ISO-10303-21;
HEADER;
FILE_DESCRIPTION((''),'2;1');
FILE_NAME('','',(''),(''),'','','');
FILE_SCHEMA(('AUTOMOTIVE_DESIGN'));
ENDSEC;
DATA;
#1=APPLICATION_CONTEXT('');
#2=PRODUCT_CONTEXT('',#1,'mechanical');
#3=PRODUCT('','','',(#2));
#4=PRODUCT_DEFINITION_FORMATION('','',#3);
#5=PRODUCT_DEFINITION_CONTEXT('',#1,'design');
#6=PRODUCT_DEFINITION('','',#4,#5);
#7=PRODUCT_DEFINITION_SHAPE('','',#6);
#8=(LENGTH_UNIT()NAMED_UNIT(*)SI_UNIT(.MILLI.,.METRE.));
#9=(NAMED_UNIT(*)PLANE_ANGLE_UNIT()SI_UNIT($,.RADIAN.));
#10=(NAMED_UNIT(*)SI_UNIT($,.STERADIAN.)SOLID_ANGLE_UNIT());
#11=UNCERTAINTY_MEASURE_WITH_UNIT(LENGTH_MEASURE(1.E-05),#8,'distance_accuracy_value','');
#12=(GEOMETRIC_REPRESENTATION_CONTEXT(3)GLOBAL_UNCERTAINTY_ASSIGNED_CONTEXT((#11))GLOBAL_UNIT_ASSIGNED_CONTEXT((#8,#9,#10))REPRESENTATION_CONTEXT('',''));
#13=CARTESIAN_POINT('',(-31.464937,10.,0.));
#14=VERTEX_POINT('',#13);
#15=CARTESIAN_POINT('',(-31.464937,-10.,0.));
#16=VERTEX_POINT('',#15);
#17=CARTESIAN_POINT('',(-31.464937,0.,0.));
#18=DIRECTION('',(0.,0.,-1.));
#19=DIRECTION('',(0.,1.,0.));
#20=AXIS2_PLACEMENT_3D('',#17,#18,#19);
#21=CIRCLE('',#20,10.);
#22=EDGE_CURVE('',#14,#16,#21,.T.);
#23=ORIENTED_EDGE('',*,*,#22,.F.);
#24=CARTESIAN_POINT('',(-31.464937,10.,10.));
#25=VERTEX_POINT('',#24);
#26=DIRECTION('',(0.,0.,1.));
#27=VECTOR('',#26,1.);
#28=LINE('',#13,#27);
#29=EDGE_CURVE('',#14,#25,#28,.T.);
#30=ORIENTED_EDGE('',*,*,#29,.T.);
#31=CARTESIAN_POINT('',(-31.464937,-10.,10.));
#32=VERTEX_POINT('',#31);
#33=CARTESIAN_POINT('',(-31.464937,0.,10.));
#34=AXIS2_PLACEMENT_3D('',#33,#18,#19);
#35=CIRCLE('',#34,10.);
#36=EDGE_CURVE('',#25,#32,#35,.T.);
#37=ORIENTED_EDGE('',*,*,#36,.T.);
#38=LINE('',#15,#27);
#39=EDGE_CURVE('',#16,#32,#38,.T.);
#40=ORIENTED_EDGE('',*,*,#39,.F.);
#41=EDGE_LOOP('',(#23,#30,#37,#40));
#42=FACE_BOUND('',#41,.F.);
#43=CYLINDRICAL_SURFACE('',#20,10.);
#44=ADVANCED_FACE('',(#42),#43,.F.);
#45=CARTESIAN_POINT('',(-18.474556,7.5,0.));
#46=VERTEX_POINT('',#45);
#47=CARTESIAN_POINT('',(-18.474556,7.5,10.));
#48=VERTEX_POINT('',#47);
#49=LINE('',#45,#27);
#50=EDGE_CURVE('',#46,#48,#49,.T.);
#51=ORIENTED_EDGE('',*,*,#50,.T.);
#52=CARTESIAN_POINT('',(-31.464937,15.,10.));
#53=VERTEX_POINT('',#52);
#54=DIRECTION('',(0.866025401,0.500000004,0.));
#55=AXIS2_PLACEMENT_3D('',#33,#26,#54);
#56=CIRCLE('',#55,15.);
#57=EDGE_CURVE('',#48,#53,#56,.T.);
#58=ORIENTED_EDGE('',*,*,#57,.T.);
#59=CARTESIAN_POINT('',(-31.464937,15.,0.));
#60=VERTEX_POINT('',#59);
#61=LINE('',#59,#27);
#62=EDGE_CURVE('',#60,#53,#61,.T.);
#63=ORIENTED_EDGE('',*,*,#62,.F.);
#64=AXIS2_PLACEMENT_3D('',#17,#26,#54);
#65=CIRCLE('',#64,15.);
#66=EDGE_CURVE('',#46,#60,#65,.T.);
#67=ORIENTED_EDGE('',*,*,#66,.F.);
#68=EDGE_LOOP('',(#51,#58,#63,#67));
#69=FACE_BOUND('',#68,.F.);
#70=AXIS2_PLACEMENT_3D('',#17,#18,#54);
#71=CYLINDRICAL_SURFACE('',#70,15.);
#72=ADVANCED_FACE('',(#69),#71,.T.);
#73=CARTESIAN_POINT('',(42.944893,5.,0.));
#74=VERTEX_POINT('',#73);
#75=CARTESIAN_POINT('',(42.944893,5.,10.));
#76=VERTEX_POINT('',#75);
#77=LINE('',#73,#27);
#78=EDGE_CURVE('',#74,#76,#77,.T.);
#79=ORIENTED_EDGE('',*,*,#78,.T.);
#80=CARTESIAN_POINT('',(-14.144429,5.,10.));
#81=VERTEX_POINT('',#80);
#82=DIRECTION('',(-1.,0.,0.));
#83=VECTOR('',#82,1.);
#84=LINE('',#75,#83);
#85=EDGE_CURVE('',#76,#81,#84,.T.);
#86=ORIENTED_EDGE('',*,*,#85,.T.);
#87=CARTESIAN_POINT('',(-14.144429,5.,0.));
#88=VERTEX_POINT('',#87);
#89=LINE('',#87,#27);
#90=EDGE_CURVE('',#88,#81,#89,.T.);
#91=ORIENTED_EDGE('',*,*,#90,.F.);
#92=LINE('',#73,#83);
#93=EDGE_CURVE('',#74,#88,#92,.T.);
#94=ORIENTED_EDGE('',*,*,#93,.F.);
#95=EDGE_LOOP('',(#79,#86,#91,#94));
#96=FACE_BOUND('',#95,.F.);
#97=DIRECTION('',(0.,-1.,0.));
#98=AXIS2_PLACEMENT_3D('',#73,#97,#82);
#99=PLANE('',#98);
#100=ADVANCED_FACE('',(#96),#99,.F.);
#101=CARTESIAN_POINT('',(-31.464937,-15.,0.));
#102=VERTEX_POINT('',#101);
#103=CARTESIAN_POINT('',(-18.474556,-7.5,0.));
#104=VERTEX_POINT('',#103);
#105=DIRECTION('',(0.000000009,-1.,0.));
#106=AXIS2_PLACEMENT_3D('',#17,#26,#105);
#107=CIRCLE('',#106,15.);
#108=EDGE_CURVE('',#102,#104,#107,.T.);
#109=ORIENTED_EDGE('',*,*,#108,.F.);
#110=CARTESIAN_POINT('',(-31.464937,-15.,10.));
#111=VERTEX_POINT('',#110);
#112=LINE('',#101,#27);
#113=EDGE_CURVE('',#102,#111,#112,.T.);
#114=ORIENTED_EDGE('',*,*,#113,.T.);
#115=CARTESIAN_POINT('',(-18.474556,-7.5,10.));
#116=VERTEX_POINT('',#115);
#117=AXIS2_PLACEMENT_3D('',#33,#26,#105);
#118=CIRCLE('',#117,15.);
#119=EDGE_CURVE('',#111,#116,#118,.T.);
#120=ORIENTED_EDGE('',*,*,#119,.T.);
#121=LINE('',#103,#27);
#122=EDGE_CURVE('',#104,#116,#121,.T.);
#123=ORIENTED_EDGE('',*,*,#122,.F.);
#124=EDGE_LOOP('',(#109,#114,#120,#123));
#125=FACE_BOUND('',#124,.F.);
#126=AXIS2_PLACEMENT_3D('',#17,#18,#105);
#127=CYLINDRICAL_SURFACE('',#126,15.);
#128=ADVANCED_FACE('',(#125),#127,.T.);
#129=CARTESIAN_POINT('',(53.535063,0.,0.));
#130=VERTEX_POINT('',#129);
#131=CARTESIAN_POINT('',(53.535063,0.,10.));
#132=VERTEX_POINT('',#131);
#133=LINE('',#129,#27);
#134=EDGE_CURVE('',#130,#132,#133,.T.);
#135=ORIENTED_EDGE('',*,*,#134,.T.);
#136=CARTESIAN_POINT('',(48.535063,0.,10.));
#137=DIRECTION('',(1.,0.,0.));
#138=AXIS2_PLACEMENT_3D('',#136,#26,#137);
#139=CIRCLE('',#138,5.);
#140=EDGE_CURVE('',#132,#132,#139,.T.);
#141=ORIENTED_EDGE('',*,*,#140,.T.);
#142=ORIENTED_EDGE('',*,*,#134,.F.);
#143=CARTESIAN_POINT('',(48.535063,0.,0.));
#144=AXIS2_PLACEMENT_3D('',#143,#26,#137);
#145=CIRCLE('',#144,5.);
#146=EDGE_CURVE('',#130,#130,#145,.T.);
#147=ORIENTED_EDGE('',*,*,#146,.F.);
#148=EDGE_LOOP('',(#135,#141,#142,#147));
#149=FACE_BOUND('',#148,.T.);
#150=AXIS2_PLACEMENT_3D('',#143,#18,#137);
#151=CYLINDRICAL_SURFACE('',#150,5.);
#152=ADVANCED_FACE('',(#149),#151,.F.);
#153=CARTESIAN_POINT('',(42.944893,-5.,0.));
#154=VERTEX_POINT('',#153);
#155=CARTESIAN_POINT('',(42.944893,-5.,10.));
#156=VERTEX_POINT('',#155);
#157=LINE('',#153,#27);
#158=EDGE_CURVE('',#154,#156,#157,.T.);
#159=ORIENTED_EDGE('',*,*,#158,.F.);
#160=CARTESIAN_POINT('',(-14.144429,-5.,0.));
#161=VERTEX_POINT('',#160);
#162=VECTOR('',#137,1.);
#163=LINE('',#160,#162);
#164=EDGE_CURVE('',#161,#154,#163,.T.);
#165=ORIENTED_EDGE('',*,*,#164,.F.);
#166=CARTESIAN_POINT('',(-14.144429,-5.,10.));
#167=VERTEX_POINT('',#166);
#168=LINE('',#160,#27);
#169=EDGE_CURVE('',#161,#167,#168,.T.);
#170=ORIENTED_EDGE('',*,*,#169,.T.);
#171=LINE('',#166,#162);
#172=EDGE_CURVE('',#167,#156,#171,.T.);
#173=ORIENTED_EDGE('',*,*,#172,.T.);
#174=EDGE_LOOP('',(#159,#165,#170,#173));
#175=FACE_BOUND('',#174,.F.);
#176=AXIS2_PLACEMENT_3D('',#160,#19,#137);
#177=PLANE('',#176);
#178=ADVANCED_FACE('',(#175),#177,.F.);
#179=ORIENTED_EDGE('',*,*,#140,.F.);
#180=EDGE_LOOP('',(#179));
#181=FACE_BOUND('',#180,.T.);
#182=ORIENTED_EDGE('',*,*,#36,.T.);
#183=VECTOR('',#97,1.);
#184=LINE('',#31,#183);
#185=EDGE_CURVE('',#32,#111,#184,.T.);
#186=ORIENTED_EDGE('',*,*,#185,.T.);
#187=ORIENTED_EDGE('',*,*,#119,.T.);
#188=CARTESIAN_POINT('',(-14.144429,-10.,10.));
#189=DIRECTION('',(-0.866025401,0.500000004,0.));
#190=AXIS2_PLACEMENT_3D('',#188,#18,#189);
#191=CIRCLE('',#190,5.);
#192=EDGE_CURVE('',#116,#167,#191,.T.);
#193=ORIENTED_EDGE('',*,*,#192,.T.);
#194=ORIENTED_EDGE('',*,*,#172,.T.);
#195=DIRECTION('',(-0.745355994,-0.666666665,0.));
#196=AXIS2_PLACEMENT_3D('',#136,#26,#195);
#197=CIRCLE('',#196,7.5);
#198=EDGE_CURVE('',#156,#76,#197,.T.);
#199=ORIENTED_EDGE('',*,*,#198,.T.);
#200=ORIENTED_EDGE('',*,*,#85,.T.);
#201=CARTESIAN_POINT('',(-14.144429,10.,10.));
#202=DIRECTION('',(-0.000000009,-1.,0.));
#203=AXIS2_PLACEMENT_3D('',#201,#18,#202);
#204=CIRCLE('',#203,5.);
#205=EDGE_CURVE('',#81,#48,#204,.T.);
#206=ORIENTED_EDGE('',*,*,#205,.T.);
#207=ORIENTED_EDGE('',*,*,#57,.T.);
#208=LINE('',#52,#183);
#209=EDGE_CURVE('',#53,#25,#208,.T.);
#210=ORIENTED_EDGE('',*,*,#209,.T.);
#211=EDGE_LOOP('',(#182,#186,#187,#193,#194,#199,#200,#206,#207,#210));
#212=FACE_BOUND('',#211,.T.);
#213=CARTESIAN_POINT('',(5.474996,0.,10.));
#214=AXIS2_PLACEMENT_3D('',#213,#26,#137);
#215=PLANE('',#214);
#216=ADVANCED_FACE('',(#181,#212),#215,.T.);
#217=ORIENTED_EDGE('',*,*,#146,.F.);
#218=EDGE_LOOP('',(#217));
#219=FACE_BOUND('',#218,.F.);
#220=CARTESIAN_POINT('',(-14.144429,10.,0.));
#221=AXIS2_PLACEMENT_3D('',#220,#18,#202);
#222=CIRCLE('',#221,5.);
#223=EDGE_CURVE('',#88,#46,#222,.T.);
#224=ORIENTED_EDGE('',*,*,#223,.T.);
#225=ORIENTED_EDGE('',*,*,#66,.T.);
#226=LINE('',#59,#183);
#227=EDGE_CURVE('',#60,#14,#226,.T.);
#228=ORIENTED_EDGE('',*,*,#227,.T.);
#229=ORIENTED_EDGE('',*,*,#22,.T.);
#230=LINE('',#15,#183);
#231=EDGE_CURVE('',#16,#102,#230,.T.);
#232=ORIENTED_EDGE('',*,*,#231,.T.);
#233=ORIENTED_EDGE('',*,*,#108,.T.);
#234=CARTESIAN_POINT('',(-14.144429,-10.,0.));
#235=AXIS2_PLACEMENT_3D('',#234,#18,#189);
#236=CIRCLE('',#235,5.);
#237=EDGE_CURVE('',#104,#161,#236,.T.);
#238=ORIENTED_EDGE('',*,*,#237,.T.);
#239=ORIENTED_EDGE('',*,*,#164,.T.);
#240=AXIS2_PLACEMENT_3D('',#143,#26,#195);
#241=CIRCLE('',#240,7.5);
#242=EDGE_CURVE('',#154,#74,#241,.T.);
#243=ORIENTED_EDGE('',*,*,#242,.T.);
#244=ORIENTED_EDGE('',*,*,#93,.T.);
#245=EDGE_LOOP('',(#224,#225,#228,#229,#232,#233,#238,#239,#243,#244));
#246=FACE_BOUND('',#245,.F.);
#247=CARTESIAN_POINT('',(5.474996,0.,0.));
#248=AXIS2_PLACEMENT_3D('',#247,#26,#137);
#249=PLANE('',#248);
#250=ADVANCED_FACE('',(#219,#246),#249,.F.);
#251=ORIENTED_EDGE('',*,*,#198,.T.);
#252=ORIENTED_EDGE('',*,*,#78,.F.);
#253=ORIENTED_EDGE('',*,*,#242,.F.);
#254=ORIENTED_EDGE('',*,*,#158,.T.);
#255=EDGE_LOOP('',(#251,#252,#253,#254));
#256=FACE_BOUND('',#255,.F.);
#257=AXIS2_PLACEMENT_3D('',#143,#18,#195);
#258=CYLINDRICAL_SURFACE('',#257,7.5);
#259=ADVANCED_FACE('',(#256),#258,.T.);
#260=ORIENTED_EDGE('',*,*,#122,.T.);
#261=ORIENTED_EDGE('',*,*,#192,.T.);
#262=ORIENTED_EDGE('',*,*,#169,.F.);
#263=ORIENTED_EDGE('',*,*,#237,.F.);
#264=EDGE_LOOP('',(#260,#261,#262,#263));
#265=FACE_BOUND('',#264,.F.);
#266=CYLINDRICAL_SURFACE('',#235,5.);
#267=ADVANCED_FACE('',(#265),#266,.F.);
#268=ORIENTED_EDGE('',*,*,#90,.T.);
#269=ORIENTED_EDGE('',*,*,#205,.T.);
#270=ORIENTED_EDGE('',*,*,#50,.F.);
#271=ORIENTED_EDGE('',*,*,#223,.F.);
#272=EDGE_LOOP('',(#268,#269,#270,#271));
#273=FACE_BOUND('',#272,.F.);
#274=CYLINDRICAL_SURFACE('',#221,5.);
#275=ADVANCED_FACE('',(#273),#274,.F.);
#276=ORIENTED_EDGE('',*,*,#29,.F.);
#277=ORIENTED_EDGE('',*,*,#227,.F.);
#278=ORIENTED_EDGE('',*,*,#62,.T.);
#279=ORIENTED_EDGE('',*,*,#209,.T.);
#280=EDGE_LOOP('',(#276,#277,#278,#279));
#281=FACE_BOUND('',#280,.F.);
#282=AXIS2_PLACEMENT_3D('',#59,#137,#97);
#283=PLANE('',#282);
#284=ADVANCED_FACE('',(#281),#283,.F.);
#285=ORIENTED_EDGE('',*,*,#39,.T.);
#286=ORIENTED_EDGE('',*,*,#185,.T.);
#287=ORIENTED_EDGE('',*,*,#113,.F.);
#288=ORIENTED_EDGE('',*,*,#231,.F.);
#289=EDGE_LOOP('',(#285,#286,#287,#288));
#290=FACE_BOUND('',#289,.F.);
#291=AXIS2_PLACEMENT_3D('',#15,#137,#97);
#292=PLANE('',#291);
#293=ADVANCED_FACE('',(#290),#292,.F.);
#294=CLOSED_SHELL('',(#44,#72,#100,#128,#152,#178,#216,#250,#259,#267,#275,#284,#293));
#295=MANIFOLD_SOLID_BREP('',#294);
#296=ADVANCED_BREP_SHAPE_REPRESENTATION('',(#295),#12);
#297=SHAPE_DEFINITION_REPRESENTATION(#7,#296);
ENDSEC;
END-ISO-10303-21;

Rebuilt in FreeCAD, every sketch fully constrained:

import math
import FreeCAD as App
import Part
import Sketcher

V = App.Vector
Q = App.Units.Quantity

doc = App.newDocument("Part")
params = doc.addObject("Spreadsheet::Sheet", "Params")
for row, (alias, value) in enumerate([
    ("sketch1_diameter", "10 mm"),
    ("sketch1_radius", "10 mm"),
    ("sketch1_radius2", "15 mm"),
    ("sketch1_radius3", "7.5 mm"),
    ("pad1_length", "10 mm"),
], start=1):
    params.set(f"A{row}", alias)
    params.set(f"B{row}", "=" + value)
    params.setAlias(f"B{row}", alias)

body = doc.addObject("PartDesign::Body", "Body")

# Sketch on XY plane
sketch1 = body.newObject("Sketcher::SketchObject", "Sketch")
sketch1.AttachmentSupport = (doc.getObject("XY_Plane"), [""])
sketch1.MapMode = "FlatFace"
sketch1.addGeometry([
    Part.ArcOfCircle(Part.Circle(V(-31.5, 0, 0), V(0, 0, 1), 10), math.radians(-90), math.radians(90)),  # 0
    Part.LineSegment(V(-31.5, -10, 0), V(-31.5, -15, 0)),  # 1
    Part.ArcOfCircle(Part.Circle(V(-31.5, 0, 0), V(0, 0, 1), 15), math.radians(-90), math.radians(-30)),  # 2
    Part.ArcOfCircle(Part.Circle(V(-14.1, -10, 0), V(0, 0, 1), 5), math.radians(90), math.radians(150)),  # 3
    Part.LineSegment(V(-14.1, -5, 0), V(42.9, -5, 0)),  # 4
    Part.ArcOfCircle(Part.Circle(V(48.5, 0, 0), V(0, 0, 1), 7.5), math.radians(-138), math.radians(138)),  # 5
    Part.LineSegment(V(42.9, 5, 0), V(-14.1, 5, 0)),  # 6
    Part.ArcOfCircle(Part.Circle(V(-14.1, 10, 0), V(0, 0, 1), 5), math.radians(-150), math.radians(-90)),  # 7
    Part.ArcOfCircle(Part.Circle(V(-31.5, 0, 0), V(0, 0, 1), 15), math.radians(30), math.radians(90)),  # 8
    Part.LineSegment(V(-31.5, 15, 0), V(-31.5, 10, 0)),  # 9
    Part.Circle(V(48.5, 0, 0), V(0, 0, 1), 5),  # 10
], False)
sketch1.addConstraint([
    Sketcher.Constraint("Coincident", 0, 1, 1, 1),
    Sketcher.Constraint("Coincident", 1, 2, 2, 1),
    Sketcher.Constraint("Tangent", 2, 2, 3, 2),
    Sketcher.Constraint("Tangent", 3, 1, 4, 1),
    Sketcher.Constraint("Coincident", 4, 2, 5, 1),
    Sketcher.Constraint("Coincident", 5, 2, 6, 1),
    Sketcher.Constraint("Tangent", 6, 2, 7, 2),
    Sketcher.Constraint("Tangent", 7, 1, 8, 1),
    Sketcher.Constraint("Coincident", 8, 2, 9, 1),
    Sketcher.Constraint("Coincident", 9, 2, 0, 2),
    Sketcher.Constraint("Vertical", 1),
    Sketcher.Constraint("Horizontal", 4),
    Sketcher.Constraint("Horizontal", 6),
    Sketcher.Constraint("Vertical", 9),
    Sketcher.Constraint("Coincident", 2, 3, 0, 3),
    Sketcher.Constraint("Coincident", 8, 3, 0, 3),
    Sketcher.Constraint("Coincident", 10, 3, 5, 3),
    Sketcher.Constraint("Equal", 3, 7),
    Sketcher.Constraint("Equal", 2, 8),
    Sketcher.Constraint("Equal", 7, 10),
    Sketcher.Constraint("Symmetric", 3, 3, 7, 3, -1),
    Sketcher.Constraint("PointOnObject", 5, 3, -1),
    Sketcher.Constraint("Horizontal", 3, 3, 0, 1),
    Sketcher.Constraint("Vertical", 8, 3, 0, 1),
    Sketcher.Constraint("Vertical", 1, 2, 8, 2),
    Sketcher.Constraint("Diameter", 10, Q("10 mm")),
    Sketcher.Constraint("Radius", 0, Q("10 mm")),
    Sketcher.Constraint("Radius", 2, Q("15 mm")),
    Sketcher.Constraint("Radius", 5, Q("7.5 mm")),
    Sketcher.Constraint("DistanceX", 0, 3, 5, 3, Q("80 mm")),
    Sketcher.Constraint("DistanceX", 3, 3, -1, 1, Q("14.144429 mm")),
])
sketch1.setExpression("Constraints[25]", "Params.sketch1_diameter")
sketch1.setExpression("Constraints[26]", "Params.sketch1_radius")
sketch1.setExpression("Constraints[27]", "Params.sketch1_radius2")
sketch1.setExpression("Constraints[28]", "Params.sketch1_radius3")
pad1 = body.newObject("PartDesign::Pad", "Pad")
pad1.Profile = sketch1
pad1.setExpression("Length", "Params.pad1_length")

doc.recompute()
